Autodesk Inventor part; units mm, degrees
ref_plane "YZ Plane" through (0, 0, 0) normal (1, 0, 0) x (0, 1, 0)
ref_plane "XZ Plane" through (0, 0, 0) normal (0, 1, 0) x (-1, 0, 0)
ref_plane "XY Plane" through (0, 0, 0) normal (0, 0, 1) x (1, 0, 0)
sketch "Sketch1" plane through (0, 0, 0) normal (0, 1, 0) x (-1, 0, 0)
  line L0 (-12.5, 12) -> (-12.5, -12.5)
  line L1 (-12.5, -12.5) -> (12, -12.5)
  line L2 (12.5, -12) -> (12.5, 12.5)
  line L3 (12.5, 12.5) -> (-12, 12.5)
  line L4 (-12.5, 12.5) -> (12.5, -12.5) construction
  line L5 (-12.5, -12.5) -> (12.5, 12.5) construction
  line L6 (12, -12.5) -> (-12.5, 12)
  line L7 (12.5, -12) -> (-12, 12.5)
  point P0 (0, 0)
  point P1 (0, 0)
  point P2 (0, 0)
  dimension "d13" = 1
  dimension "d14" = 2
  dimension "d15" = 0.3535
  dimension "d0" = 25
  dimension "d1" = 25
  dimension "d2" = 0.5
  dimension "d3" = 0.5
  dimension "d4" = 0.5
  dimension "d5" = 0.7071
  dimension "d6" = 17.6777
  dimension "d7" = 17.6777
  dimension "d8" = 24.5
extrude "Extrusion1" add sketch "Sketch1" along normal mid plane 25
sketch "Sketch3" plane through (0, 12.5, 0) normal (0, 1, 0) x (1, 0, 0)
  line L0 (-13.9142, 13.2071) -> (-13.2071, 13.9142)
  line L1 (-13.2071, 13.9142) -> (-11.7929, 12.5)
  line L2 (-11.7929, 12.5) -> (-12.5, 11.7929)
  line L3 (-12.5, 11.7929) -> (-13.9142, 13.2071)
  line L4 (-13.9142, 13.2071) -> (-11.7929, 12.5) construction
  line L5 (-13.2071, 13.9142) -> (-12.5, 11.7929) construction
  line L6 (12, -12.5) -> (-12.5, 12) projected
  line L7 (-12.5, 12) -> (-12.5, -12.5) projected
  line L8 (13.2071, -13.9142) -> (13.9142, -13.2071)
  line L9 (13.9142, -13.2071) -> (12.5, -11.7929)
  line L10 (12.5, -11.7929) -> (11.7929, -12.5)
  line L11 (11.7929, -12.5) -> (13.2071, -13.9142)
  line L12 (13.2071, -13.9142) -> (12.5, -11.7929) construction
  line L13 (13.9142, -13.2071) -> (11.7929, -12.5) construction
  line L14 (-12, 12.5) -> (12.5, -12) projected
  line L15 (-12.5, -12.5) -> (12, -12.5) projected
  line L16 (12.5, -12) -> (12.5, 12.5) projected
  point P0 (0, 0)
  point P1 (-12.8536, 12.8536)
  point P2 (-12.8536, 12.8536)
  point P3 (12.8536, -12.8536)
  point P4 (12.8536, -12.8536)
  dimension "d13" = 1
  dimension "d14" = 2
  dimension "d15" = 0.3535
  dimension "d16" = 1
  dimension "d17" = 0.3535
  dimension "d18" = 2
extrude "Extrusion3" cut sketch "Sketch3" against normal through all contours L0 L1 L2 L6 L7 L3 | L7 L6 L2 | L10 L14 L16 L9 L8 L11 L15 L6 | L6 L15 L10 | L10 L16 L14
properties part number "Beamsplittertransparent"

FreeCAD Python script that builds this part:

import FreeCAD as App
import Part
import Sketcher
Q = App.Units.Quantity

doc = App.newDocument("Part")
body = doc.addObject("PartDesign::Body", "Body")
body.AllowCompound = True

# Sketch on XZ plane
sketch1 = doc.addObject("Sketcher::SketchObject", "Sketch")
body.addObject(sketch1)
sketch1.AttachmentSupport = (doc.XZ_Plane, [""])
sketch1.MapMode = "FlatFace"
sketch1.addGeometry([
    Part.LineSegment(App.Vector(-12, -12.5, 0), App.Vector(12.5, 12, 0)),  # 0
    Part.LineSegment(App.Vector(12.5, 12, 0), App.Vector(12.5, -12.5, 0)),  # 1
    Part.LineSegment(App.Vector(12.5, -12.5, 0), App.Vector(-12, -12.5, 0)),  # 2
    Part.LineSegment(App.Vector(12, 12.5, 0), App.Vector(-12.5, -12, 0)),  # 3
    Part.LineSegment(App.Vector(-12.5, -12, 0), App.Vector(-12.5, 12.5, 0)),  # 4
    Part.LineSegment(App.Vector(-12.5, 12.5, 0), App.Vector(12, 12.5, 0)),  # 5
], False)
sketch1.addConstraint([
    Sketcher.Constraint("Coincident", 0, 2, 1, 1),
    Sketcher.Constraint("Coincident", 1, 2, 2, 1),
    Sketcher.Constraint("Coincident", 2, 2, 0, 1),
    Sketcher.Constraint("Coincident", 3, 2, 4, 1),
    Sketcher.Constraint("Coincident", 4, 2, 5, 1),
    Sketcher.Constraint("Coincident", 5, 2, 3, 1),
    Sketcher.Constraint("Vertical", 1),
    Sketcher.Constraint("Horizontal", 2),
    Sketcher.Constraint("Vertical", 4),
    Sketcher.Constraint("Horizontal", 5),
    Sketcher.Constraint("Symmetric", 0, 2, 3, 2, -1, 1),
    Sketcher.Constraint("Symmetric", 2, 2, 5, 2, -1, 1),
    Sketcher.Constraint("Equal", 5, 1),
    Sketcher.Constraint("DistanceX", 2, 2, 2, 1, 24.5),
    Sketcher.Constraint("DistanceX", 3, 2, 1, 2, 25.0),
    Sketcher.Constraint("DistanceY", 2, 2, 4, 2, 25.0),
])
pad1 = doc.addObject("PartDesign::Pad", "Pad")
body.addObject(pad1)
pad1.Profile = sketch1
pad1.Length = 25
pad1.Midplane = True

# Sketch on XZ plane
sketch2 = doc.addObject("Sketcher::SketchObject", "Sketch001")
body.addObject(sketch2)
sketch2.AttachmentSupport = (doc.XZ_Plane, [""])
sketch2.MapMode = "FlatFace"
sketch2.AttachmentOffset = App.Placement(App.Vector(0, 0, -12.5), App.Rotation())
sketch2.addGeometry([
    Part.LineSegment(App.Vector(-13.2071, -13.9142, 0), App.Vector(-13.9142, -13.2071, 0)),  # 0
    Part.LineSegment(App.Vector(-13.9142, -13.2071, 0), App.Vector(-12.5, -11.7929, 0)),  # 1
    Part.LineSegment(App.Vector(-12.5, -11.7929, 0), App.Vector(-11.7929, -12.5, 0)),  # 2
    Part.LineSegment(App.Vector(-11.7929, -12.5, 0), App.Vector(-13.2071, -13.9142, 0)),  # 3
    Part.LineSegment(App.Vector(11.7929, 12.5, 0), App.Vector(13.2071, 13.9142, 0)),  # 4
    Part.LineSegment(App.Vector(13.2071, 13.9142, 0), App.Vector(13.9142, 13.2071, 0)),  # 5
    Part.LineSegment(App.Vector(13.9142, 13.2071, 0), App.Vector(12.5, 11.7929, 0)),  # 6
    Part.LineSegment(App.Vector(12.5, 11.7929, 0), App.Vector(11.7929, 12.5, 0)),  # 7
], False)
sketch2.addConstraint([
    Sketcher.Constraint("Coincident", 0, 2, 1, 1),
    Sketcher.Constraint("Coincident", 1, 2, 2, 1),
    Sketcher.Constraint("Coincident", 2, 2, 3, 1),
    Sketcher.Constraint("Coincident", 3, 2, 0, 1),
    Sketcher.Constraint("Coincident", 4, 2, 5, 1),
    Sketcher.Constraint("Coincident", 5, 2, 6, 1),
    Sketcher.Constraint("Coincident", 6, 2, 7, 1),
    Sketcher.Constraint("Coincident", 7, 2, 4, 1),
    Sketcher.Constraint("Symmetric", 3, 2, 4, 2, -1, 1),
    Sketcher.Constraint("Symmetric", 0, 2, 5, 2, -1, 1),
    Sketcher.Constraint("Symmetric", 1, 2, 6, 2, -1, 1),
    Sketcher.Constraint("Symmetric", 2, 2, 7, 2, -1, 1),
    Sketcher.Constraint("Perpendicular", 0, 1),
    Sketcher.Constraint("Perpendicular", 1, 2),
    Sketcher.Constraint("Perpendicular", 2, 3),
    Sketcher.Constraint("Distance", 0, 1.0),
    Sketcher.Constraint("Distance", 1, 2.0),
    Sketcher.Constraint("Angle", 0, Q("135 deg")),
    Sketcher.Constraint("DistanceX", 2, 2, 4, 2, 25.0),
    Sketcher.Constraint("DistanceY", 1, 2, 5, 2, 25.0),
])
pocket1 = doc.addObject("PartDesign::Pocket", "Pocket")
body.addObject(pocket1)
pocket1.Profile = sketch2
pocket1.Type = "ThroughAll"
pocket1.Reversed = True

doc.recompute()
